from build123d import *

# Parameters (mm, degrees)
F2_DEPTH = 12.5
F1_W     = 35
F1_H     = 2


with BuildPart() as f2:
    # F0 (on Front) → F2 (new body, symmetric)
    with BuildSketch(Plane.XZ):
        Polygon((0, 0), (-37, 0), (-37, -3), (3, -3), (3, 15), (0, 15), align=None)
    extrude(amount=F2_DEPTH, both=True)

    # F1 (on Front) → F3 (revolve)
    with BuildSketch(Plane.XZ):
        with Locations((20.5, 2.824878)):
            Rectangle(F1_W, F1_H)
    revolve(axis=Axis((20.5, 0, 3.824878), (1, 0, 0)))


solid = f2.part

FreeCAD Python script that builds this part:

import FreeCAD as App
import Part
import Sketcher
from FreeCAD import Vector
Q = App.Units.Quantity


def add_polygon(sketch, points):
    """Adds a closed chain of lines whose ends are joined by coincident constraints."""
    first, n = sketch.GeometryCount, len(points)
    for a, b in zip(points, points[1:] + points[:1]):
        sketch.addGeometry(Part.LineSegment(App.Vector(*a, 0), App.Vector(*b, 0)), False)
    for i in range(n):
        sketch.addConstraint(Sketcher.Constraint("Coincident", first + i, 2, first + (i + 1) % n, 1))

doc = App.newDocument("Part")
body = doc.addObject("PartDesign::Body", "Body")

# Sketch on XZ plane
sketch1 = doc.addObject("Sketcher::SketchObject", "Sketch")
body.addObject(sketch1)
sketch1.AttachmentSupport = (doc.XZ_Plane, [""])
sketch1.MapMode = "FlatFace"
add_polygon(sketch1, [(0, 0), (-37, 0), (-37, -3), (3, -3), (3, 15), (0, 15)])  # lines 0-5
sketch1.addConstraint([
    Sketcher.Constraint("Horizontal", 0),
    Sketcher.Constraint("Vertical", 1),
    Sketcher.Constraint("Horizontal", 2),
    Sketcher.Constraint("Vertical", 3),
    Sketcher.Constraint("Horizontal", 4),
    Sketcher.Constraint("Vertical", 5),
    Sketcher.Constraint("Coincident", 5, 2, -1, 1),
    Sketcher.Constraint("Equal", 4, 1),
    Sketcher.Constraint("DistanceX", 0, 2, 0, 1, Q("37 mm")),
    Sketcher.Constraint("DistanceX", 2, 1, 2, 2, Q("40 mm")),
    Sketcher.Constraint("DistanceY", 3, 1, 3, 2, Q("18 mm")),
])
pad1 = doc.addObject("PartDesign::Pad", "Pad")
body.addObject(pad1)
pad1.Profile = sketch1
pad1.Length = 25
pad1.Midplane = True

# Sketch on XZ plane
sketch2 = doc.addObject("Sketcher::SketchObject", "Sketch001")
body.addObject(sketch2)
sketch2.AttachmentSupport = (doc.XZ_Plane, [""])
sketch2.MapMode = "FlatFace"
add_polygon(sketch2, [(3, 3.8), (3, 1.8), (38, 1.8), (38, 3.8)])  # lines 0-3
sketch2.addGeometry(Part.LineSegment(Vector(3, 3.8, 0), Vector(38, 3.8, 0)), True)  # axis
sketch2.addConstraint([
    Sketcher.Constraint("Vertical", 0),
    Sketcher.Constraint("Horizontal", 1),
    Sketcher.Constraint("Vertical", 2),
    Sketcher.Constraint("Horizontal", 3),
    Sketcher.Constraint("Horizontal", 4),
    Sketcher.Constraint("Coincident", 4, 1, 3, 2),
    Sketcher.Constraint("Vertical", 1, 2, 4, 2),
    Sketcher.Constraint("DistanceX", 1, 1, 1, 2, Q("35 mm")),
    Sketcher.Constraint("DistanceY", 0, 2, 0, 1, Q("2 mm")),
    Sketcher.Constraint("DistanceX", -1, 1, 0, 2, Q("3 mm")),
    Sketcher.Constraint("DistanceY", -1, 1, 2, 2, Q("3.824878 mm")),
])
revolution = doc.addObject("PartDesign::Revolution", "Revolution")
body.addObject(revolution)
revolution.Profile = sketch2
revolution.ReferenceAxis = (sketch2, ["Axis0"])
revolution.Angle = 360

doc.recompute()
